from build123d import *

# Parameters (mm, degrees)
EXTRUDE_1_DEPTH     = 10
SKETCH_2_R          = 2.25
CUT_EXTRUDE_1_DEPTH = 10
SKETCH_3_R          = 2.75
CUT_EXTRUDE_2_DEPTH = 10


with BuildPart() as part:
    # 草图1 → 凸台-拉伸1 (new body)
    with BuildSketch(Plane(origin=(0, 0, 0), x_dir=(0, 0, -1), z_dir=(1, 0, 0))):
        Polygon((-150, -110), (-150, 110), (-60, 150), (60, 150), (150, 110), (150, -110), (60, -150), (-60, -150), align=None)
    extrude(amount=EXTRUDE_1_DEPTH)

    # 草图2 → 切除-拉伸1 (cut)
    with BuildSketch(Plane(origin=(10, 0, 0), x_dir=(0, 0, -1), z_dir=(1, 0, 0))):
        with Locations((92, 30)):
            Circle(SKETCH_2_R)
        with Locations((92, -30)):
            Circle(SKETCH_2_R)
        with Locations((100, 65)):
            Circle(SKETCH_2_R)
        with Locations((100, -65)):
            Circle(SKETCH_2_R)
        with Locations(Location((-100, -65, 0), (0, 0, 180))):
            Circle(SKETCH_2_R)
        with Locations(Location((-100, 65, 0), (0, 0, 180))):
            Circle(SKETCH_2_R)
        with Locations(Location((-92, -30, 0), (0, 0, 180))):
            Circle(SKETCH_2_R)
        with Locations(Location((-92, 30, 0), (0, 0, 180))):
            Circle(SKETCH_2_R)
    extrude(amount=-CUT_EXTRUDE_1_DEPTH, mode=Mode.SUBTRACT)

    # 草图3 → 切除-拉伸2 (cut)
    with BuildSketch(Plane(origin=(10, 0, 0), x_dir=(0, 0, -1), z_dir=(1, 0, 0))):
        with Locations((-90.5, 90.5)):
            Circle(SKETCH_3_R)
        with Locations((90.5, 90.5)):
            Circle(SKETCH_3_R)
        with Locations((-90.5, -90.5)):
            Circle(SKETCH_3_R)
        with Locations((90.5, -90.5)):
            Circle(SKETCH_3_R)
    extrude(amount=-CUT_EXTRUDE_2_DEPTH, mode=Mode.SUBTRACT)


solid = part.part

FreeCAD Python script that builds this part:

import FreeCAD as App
import Part
import Sketcher
from FreeCAD import Vector
Q = App.Units.Quantity


def add_polygon(sketch, points):
    """Adds a closed chain of lines whose ends are joined by coincident constraints."""
    first, n = sketch.GeometryCount, len(points)
    for a, b in zip(points, points[1:] + points[:1]):
        sketch.addGeometry(Part.LineSegment(App.Vector(*a, 0), App.Vector(*b, 0)), False)
    for i in range(n):
        sketch.addConstraint(Sketcher.Constraint("Coincident", first + i, 2, first + (i + 1) % n, 1))

doc = App.newDocument("Part")
body = doc.addObject("PartDesign::Body", "Body")

# Sketch on YZ plane
sketch1 = body.newObject("Sketcher::SketchObject", "Sketch")
sketch1.AttachmentSupport = (doc.getObject("YZ_Plane"), [""])
sketch1.MapMode = "FlatFace"
add_polygon(sketch1, [(110, 150), (-110, 150), (-150, 60), (-150, -60), (-110, -150), (110, -150), (150, -60), (150, 60)])  # lines 0-7
sketch1.addConstraint(Sketcher.Constraint("Horizontal", 0))
sketch1.addConstraint(Sketcher.Constraint("Vertical", 2))
sketch1.addConstraint(Sketcher.Constraint("Horizontal", 4))
sketch1.addConstraint(Sketcher.Constraint("Vertical", 6))
sketch1.addConstraint(Sketcher.Constraint("Symmetric", 0, 2, 4, 2, -1, 1))
sketch1.addConstraint(Sketcher.Constraint("Symmetric", 1, 2, 5, 2, -1, 1))
sketch1.addConstraint(Sketcher.Constraint("Parallel", 3, 7))
sketch1.addConstraint(Sketcher.Constraint("Horizontal", 2, 2, 5, 2))
sketch1.addConstraint(Sketcher.Constraint("Horizontal", 1, 2, 6, 2))
sketch1.addConstraint(Sketcher.Constraint("Vertical", 0, 2, 3, 2))
sketch1.addConstraint(Sketcher.Constraint("DistanceX", 0, 2, 0, 1, Q("220 mm")))
sketch1.addConstraint(Sketcher.Constraint("DistanceY", 2, 2, 2, 1, Q("120 mm")))
sketch1.addConstraint(Sketcher.Constraint("DistanceY", -1, 1, 0, 2, Q("150 mm")))
sketch1.addConstraint(Sketcher.Constraint("DistanceX", 1, 2, -1, 1, Q("150 mm")))
pad1 = body.newObject("PartDesign::Pad", "Pad")
pad1.Profile = sketch1
pad1.Length = 10

# Sketch on YZ plane
sketch2 = body.newObject("Sketcher::SketchObject", "Sketch001")
sketch2.AttachmentSupport = (doc.getObject("YZ_Plane"), [""])
sketch2.MapMode = "FlatFace"
sketch2.AttachmentOffset = App.Placement(Vector(0, 0, 10), App.Rotation())
sketch2.addGeometry(Part.Circle(Vector(30, -92, 0), Vector(0, 0, 1), 2.25), False)
sketch2.addGeometry(Part.Circle(Vector(-30, -92, 0), Vector(0, 0, 1), 2.25), False)
sketch2.addGeometry(Part.Circle(Vector(65, -100, 0), Vector(0, 0, 1), 2.25), False)
sketch2.addGeometry(Part.Circle(Vector(-65, -100, 0), Vector(0, 0, 1), 2.25), False)
sketch2.addGeometry(Part.Circle(Vector(-65, 100, 0), Vector(0, 0, 1), 2.25), False)
sketch2.addGeometry(Part.Circle(Vector(65, 100, 0), Vector(0, 0, 1), 2.25), False)
sketch2.addGeometry(Part.Circle(Vector(-30, 92, 0), Vector(0, 0, 1), 2.25), False)
sketch2.addGeometry(Part.Circle(Vector(30, 92, 0), Vector(0, 0, 1), 2.25), False)
sketch2.addConstraint(Sketcher.Constraint("Equal", 0, 1))
sketch2.addConstraint(Sketcher.Constraint("Equal", 1, 2))
sketch2.addConstraint(Sketcher.Constraint("Equal", 2, 3))
sketch2.addConstraint(Sketcher.Constraint("Equal", 3, 4))
sketch2.addConstraint(Sketcher.Constraint("Equal", 4, 5))
sketch2.addConstraint(Sketcher.Constraint("Equal", 5, 6))
sketch2.addConstraint(Sketcher.Constraint("Equal", 6, 7))
sketch2.addConstraint(Sketcher.Constraint("Symmetric", 2, 3, 4, 3, -1, 1))
sketch2.addConstraint(Sketcher.Constraint("Symmetric", 3, 3, 5, 3, -1, 1))
sketch2.addConstraint(Sketcher.Constraint("Symmetric", 0, 3, 6, 3, -1, 1))
sketch2.addConstraint(Sketcher.Constraint("Symmetric", 1, 3, 7, 3, -1, 1))
sketch2.addConstraint(Sketcher.Constraint("Symmetric", 0, 3, 1, 3, -2))
sketch2.addConstraint(Sketcher.Constraint("Symmetric", 2, 3, 3, 3, -2))
sketch2.addConstraint(Sketcher.Constraint("Diameter", 0, Q("4.5 mm")))
sketch2.addConstraint(Sketcher.Constraint("DistanceX", -1, 1, 0, 3, Q("30 mm")))
sketch2.addConstraint(Sketcher.Constraint("DistanceY", 0, 3, -1, 1, Q("92 mm")))
sketch2.addConstraint(Sketcher.Constraint("DistanceX", -1, 1, 2, 3, Q("65 mm")))
sketch2.addConstraint(Sketcher.Constraint("DistanceY", 2, 3, -1, 1, Q("100 mm")))
pocket1 = body.newObject("PartDesign::Pocket", "Pocket")
pocket1.Profile = sketch2
pocket1.Length = 10

# Sketch on YZ plane
sketch3 = body.newObject("Sketcher::SketchObject", "Sketch002")
sketch3.AttachmentSupport = (doc.getObject("YZ_Plane"), [""])
sketch3.MapMode = "FlatFace"
sketch3.AttachmentOffset = App.Placement(Vector(0, 0, 10), App.Rotation())
sketch3.addGeometry(Part.Circle(Vector(90.5, 90.5, 0), Vector(0, 0, 1), 2.75), False)
sketch3.addGeometry(Part.Circle(Vector(90.5, -90.5, 0), Vector(0, 0, 1), 2.75), False)
sketch3.addGeometry(Part.Circle(Vector(-90.5, 90.5, 0), Vector(0, 0, 1), 2.75), False)
sketch3.addGeometry(Part.Circle(Vector(-90.5, -90.5, 0), Vector(0, 0, 1), 2.75), False)
sketch3.addConstraint(Sketcher.Constraint("Equal", 0, 1))
sketch3.addConstraint(Sketcher.Constraint("Equal", 1, 2))
sketch3.addConstraint(Sketcher.Constraint("Equal", 2, 3))
sketch3.addConstraint(Sketcher.Constraint("Symmetric", 1, 3, 2, 3, -1, 1))
sketch3.addConstraint(Sketcher.Constraint("Symmetric", 0, 3, 3, 3, -1, 1))
sketch3.addConstraint(Sketcher.Constraint("Symmetric", 0, 3, 2, 3, -2))
sketch3.addConstraint(Sketcher.Constraint("Diameter", 0, Q("5.5 mm")))
sketch3.addConstraint(Sketcher.Constraint("DistanceY", 1, 3, 0, 3, Q("181 mm")))
sketch3.addConstraint(Sketcher.Constraint("DistanceX", 2, 3, 0, 3, Q("181 mm")))
pocket2 = body.newObject("PartDesign::Pocket", "Pocket001")
pocket2.Profile = sketch3
pocket2.Length = 10

doc.recompute()
